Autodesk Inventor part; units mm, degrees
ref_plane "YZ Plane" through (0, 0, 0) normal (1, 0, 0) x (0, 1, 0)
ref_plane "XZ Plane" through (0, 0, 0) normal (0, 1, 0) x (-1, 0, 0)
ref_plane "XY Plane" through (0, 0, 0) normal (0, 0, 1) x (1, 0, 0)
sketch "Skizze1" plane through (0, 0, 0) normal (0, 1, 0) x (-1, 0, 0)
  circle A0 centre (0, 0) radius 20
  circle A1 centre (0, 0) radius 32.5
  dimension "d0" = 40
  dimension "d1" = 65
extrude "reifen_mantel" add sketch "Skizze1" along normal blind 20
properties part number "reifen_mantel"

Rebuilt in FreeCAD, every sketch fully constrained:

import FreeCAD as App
import Part
import Sketcher

V = App.Vector
Q = App.Units.Quantity

doc = App.newDocument("Part")
body = doc.addObject("PartDesign::Body", "Body")

sketch1 = body.newObject("Sketcher::SketchObject", "Sketch")
sketch1.AttachmentSupport = (doc.getObject("XZ_Plane"), [""])
sketch1.MapMode = "FlatFace"
sketch1.addGeometry([
    Part.Circle(V(0, 0, 0), V(0, 0, 1), 32),
    Part.Circle(V(0, 0, 0), V(0, 0, 1), 20),
], False)
sketch1.addConstraint([
    Sketcher.Constraint("Coincident", 0, 3, -1, 1),
    Sketcher.Constraint("Coincident", 1, 3, -1, 1),
    Sketcher.Constraint("Diameter", 0, Q("65 mm")),
    Sketcher.Constraint("Diameter", 1, Q("40 mm")),
])
pad1 = body.newObject("PartDesign::Pad", "Pad")
pad1.Profile = sketch1
pad1.Length = 20
pad1.Reversed = True

doc.recompute()
